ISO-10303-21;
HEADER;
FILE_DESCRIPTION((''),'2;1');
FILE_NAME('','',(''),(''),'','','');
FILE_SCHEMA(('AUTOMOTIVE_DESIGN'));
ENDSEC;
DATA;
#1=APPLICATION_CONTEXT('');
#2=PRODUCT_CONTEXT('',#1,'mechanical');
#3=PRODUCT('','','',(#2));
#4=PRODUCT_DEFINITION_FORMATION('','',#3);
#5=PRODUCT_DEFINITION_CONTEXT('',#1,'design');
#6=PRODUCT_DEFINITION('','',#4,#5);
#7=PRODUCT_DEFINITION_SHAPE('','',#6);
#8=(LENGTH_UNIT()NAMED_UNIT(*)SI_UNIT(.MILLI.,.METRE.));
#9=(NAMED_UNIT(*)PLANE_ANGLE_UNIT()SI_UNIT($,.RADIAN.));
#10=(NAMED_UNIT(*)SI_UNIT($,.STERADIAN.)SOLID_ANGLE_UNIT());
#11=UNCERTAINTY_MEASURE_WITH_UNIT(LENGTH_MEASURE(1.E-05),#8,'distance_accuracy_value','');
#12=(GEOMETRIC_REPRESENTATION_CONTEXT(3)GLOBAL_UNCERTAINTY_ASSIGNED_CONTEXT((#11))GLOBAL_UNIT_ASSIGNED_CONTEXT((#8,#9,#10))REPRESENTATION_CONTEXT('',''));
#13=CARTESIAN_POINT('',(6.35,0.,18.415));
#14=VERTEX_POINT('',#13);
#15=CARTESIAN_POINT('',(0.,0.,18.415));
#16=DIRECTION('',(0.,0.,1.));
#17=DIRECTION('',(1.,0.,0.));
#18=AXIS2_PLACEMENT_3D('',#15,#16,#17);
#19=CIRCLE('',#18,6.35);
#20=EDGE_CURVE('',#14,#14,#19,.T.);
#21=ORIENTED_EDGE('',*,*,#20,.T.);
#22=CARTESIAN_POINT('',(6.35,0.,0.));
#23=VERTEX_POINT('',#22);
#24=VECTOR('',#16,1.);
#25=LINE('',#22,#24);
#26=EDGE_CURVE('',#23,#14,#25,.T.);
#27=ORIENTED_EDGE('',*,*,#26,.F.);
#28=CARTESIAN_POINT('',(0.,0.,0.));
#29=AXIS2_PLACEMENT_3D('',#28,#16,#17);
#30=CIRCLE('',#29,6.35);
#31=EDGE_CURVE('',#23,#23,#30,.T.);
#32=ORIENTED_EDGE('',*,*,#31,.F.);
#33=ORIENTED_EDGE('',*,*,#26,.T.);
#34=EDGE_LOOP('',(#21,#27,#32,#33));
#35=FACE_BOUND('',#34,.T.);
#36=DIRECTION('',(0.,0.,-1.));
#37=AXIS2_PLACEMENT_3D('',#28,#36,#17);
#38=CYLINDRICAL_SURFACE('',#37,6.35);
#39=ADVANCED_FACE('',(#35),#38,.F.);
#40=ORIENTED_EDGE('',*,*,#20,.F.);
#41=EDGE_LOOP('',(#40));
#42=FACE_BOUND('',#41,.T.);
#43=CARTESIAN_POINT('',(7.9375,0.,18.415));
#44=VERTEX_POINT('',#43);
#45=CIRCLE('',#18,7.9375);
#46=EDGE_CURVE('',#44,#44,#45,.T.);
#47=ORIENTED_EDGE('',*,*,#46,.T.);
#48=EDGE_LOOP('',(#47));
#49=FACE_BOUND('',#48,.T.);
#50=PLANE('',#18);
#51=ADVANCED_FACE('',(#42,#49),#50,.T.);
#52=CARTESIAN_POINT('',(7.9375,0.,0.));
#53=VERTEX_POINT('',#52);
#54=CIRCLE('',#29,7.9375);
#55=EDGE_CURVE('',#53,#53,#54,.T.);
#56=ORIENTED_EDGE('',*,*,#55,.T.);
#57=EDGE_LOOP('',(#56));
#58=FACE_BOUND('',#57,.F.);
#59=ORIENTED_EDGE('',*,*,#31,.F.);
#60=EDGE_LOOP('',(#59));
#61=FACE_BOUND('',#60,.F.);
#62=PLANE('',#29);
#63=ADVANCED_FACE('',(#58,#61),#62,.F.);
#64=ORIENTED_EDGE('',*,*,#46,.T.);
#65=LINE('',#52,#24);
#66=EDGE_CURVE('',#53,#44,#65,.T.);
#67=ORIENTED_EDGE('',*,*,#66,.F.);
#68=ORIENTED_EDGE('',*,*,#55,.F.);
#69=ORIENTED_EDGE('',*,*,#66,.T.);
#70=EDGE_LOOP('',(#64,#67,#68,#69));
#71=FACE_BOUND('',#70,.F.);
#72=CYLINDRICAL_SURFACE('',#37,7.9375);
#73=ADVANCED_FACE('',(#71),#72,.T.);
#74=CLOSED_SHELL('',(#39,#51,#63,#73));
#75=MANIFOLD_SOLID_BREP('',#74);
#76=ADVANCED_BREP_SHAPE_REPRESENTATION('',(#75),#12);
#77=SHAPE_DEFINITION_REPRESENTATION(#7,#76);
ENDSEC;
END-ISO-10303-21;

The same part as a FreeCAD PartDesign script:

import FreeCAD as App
import Part
import Sketcher
Q = App.Units.Quantity

doc = App.newDocument("Part")
body = doc.addObject("PartDesign::Body", "Body")

# Sketch on XY plane
sketch1 = doc.addObject("Sketcher::SketchObject", "Sketch")
body.addObject(sketch1)
sketch1.AttachmentSupport = (doc.XY_Plane, [""])
sketch1.MapMode = "FlatFace"
sketch1.addGeometry([
    Part.Circle(App.Vector(0, 0, 0), App.Vector(0, 0, 1), 8),
    Part.Circle(App.Vector(0, 0, 0), App.Vector(0, 0, 1), 6),
], False)
sketch1.addConstraint([
    Sketcher.Constraint("Coincident", 0, 3, -1, 1),
    Sketcher.Constraint("Coincident", 1, 3, -1, 1),
    Sketcher.Constraint("Diameter", 1, Q("0.5 in")),
    Sketcher.Constraint("Diameter", 0, Q("0.625 in")),
])
pad1 = doc.addObject("PartDesign::Pad", "Pad")
body.addObject(pad1)
pad1.Profile = sketch1
pad1.Length = Q("0.725 in")

doc.recompute()
